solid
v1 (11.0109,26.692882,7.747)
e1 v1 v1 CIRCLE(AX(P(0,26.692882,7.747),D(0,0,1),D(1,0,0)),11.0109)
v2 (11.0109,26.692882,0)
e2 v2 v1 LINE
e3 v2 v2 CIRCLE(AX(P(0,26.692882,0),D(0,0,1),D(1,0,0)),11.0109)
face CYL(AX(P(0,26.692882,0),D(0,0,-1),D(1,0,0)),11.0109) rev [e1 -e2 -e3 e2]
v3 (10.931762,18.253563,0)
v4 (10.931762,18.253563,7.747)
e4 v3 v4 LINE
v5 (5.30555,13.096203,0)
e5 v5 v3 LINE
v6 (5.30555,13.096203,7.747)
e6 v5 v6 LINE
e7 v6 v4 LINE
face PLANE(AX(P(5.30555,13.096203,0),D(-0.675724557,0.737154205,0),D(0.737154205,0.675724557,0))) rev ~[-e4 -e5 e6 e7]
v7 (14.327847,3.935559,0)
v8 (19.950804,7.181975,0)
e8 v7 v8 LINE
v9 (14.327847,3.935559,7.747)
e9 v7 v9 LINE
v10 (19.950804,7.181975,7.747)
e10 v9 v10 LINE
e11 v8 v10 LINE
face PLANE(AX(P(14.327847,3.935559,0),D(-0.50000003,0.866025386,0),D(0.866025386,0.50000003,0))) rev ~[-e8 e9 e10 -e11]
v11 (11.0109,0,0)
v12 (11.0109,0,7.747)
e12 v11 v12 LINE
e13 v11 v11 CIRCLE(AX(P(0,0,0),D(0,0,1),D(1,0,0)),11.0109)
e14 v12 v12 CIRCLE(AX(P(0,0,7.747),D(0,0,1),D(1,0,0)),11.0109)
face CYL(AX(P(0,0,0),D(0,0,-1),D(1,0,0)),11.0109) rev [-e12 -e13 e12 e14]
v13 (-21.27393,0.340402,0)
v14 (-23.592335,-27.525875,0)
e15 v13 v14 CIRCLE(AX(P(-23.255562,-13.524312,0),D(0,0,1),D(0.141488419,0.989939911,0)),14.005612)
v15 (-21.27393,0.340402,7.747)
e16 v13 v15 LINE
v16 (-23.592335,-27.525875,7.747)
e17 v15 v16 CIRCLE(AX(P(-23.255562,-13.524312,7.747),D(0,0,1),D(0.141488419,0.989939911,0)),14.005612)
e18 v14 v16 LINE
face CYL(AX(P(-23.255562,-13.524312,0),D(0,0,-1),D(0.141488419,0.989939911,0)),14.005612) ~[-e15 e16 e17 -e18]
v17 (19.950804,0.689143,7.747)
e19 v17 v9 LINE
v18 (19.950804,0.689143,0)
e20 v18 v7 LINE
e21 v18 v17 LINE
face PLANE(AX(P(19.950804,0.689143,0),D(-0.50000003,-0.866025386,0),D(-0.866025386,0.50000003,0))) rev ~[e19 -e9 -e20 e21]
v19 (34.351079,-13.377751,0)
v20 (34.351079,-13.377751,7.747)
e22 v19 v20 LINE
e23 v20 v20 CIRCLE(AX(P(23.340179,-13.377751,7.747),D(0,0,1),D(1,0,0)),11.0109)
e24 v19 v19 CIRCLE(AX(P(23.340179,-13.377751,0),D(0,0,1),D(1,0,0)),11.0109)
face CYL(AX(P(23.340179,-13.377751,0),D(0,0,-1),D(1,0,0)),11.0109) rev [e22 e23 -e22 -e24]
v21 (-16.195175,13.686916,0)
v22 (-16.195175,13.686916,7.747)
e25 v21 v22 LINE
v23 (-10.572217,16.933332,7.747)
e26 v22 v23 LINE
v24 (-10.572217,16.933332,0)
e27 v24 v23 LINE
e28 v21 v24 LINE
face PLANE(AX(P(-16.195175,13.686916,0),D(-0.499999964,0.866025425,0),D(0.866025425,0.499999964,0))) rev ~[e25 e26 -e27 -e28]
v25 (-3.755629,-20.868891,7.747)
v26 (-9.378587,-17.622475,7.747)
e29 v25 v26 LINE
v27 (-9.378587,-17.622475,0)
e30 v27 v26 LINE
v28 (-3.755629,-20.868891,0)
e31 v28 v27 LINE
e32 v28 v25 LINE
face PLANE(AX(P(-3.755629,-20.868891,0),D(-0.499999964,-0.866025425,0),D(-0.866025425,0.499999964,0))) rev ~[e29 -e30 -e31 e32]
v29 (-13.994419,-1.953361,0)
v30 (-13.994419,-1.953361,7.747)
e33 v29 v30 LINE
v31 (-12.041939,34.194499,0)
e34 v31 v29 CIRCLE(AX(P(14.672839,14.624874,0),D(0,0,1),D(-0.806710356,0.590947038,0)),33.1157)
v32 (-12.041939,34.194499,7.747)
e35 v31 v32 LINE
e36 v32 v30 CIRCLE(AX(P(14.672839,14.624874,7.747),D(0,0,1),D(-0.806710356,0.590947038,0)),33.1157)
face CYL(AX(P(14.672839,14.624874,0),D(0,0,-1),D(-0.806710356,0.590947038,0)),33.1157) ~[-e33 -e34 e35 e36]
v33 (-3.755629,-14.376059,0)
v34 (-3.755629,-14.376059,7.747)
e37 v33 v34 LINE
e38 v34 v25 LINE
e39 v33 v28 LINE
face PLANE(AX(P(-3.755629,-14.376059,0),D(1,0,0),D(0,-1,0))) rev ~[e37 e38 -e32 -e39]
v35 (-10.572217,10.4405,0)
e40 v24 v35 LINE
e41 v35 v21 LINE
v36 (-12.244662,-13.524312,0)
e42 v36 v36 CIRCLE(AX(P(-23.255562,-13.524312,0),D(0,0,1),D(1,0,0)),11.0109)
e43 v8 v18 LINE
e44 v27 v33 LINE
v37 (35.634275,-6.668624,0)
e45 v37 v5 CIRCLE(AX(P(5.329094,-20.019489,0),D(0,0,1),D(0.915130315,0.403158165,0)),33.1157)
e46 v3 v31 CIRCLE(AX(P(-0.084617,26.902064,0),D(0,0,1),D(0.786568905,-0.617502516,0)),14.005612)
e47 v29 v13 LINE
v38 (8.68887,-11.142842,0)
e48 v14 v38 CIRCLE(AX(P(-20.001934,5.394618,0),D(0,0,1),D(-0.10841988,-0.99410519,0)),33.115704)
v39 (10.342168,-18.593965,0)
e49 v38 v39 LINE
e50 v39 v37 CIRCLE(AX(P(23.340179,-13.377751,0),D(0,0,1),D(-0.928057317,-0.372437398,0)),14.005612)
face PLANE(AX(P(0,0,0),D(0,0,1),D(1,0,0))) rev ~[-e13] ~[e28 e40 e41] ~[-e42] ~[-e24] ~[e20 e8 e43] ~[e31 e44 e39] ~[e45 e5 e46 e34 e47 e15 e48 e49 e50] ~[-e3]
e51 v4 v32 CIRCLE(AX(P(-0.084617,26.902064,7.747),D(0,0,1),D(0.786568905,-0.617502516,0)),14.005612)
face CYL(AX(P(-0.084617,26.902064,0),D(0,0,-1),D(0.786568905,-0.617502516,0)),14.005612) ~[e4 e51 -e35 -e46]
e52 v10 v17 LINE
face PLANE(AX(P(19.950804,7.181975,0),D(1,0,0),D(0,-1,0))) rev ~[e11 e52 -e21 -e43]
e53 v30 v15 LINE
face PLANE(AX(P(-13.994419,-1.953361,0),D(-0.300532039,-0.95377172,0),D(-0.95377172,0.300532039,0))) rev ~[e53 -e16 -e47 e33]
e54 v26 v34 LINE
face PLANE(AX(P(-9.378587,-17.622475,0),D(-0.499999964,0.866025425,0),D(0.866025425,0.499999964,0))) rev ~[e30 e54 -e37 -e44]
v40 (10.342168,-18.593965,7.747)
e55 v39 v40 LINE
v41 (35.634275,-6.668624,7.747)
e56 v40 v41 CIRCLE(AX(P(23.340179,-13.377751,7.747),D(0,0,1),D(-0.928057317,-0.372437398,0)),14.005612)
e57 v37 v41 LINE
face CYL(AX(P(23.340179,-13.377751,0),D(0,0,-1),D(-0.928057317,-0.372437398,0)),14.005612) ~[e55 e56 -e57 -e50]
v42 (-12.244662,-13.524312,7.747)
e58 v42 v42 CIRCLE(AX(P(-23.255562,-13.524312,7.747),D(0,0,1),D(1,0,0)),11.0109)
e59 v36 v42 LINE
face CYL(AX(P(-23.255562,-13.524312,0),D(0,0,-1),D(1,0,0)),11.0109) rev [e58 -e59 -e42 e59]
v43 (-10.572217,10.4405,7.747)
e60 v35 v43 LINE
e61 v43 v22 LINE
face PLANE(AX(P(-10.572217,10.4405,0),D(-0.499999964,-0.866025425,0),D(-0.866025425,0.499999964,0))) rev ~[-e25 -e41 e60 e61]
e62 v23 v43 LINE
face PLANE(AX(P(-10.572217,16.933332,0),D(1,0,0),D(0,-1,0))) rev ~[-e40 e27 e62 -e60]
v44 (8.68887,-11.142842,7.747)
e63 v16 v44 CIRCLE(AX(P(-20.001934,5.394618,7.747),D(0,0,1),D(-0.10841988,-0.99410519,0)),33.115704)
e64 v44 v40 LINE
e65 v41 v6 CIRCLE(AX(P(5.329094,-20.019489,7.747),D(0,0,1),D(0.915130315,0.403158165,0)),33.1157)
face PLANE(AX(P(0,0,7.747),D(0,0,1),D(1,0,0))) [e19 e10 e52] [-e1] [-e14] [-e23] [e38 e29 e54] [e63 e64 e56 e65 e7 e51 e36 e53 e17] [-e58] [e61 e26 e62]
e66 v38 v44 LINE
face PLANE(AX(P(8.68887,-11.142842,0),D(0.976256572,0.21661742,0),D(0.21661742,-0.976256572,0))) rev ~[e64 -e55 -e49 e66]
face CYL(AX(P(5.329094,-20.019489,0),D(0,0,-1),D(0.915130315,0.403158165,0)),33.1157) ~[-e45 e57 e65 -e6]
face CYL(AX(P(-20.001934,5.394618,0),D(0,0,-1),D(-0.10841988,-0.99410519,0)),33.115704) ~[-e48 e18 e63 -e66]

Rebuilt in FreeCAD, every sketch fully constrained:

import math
import FreeCAD as App
import Part
import Sketcher
Q = App.Units.Quantity

doc = App.newDocument("Part")
body = doc.addObject("PartDesign::Body", "Body")

# Sketch on XY plane
sketch1 = body.newObject("Sketcher::SketchObject", "Sketch")
sketch1.AttachmentSupport = (doc.getObject("XY_Plane"), [""])
sketch1.MapMode = "FlatFace"
sketch1.addGeometry(Part.LineSegment(App.Vector(5, 13, 0), App.Vector(11, 18, 0)), False)
sketch1.addGeometry(Part.ArcOfCircle(Part.Circle(App.Vector(0, 27, 0), App.Vector(0, 0, 1), 14), math.radians(-38), math.radians(149)), False)
sketch1.addGeometry(Part.ArcOfCircle(Part.Circle(App.Vector(15, 15, 0), App.Vector(0, 0, 1), 33), math.radians(144), math.radians(210)), False)
sketch1.addGeometry(Part.LineSegment(App.Vector(-14, -2, 0), App.Vector(-21, 0, 0)), False)
sketch1.addGeometry(Part.ArcOfCircle(Part.Circle(App.Vector(-23, -14, 0), App.Vector(0, 0, 1), 14), math.radians(82), math.radians(269)), False)
sketch1.addGeometry(Part.ArcOfCircle(Part.Circle(App.Vector(-20, 5, 0), App.Vector(0, 0, 1), 33), math.radians(-96), math.radians(-30)), False)
sketch1.addGeometry(Part.LineSegment(App.Vector(9, -11, 0), App.Vector(10, -19, 0)), False)
sketch1.addGeometry(Part.ArcOfCircle(Part.Circle(App.Vector(23, -13, 0), App.Vector(0, 0, 1), 14), math.radians(-158), math.radians(29)), False)
sketch1.addGeometry(Part.ArcOfCircle(Part.Circle(App.Vector(5, -20, 0), App.Vector(0, 0, 1), 33), math.radians(24), math.radians(90)), False)
sketch1.addGeometry(Part.Circle(App.Vector(-23, -14, 0), App.Vector(0, 0, 1), 11), False)
sketch1.addGeometry(Part.LineSegment(App.Vector(-9, -18, 0), App.Vector(-4, -14, 0)), False)
sketch1.addGeometry(Part.LineSegment(App.Vector(-4, -14, 0), App.Vector(-4, -21, 0)), False)
sketch1.addGeometry(Part.LineSegment(App.Vector(-4, -21, 0), App.Vector(-9, -18, 0)), False)
sketch1.addGeometry(Part.Circle(App.Vector(0, 0, 0), App.Vector(0, 0, 1), 11), False)
sketch1.addGeometry(Part.Circle(App.Vector(23, -13, 0), App.Vector(0, 0, 1), 11), False)
sketch1.addGeometry(Part.LineSegment(App.Vector(20, 1, 0), App.Vector(14, 4, 0)), False)
sketch1.addGeometry(Part.LineSegment(App.Vector(14, 4, 0), App.Vector(20, 7, 0)), False)
sketch1.addGeometry(Part.LineSegment(App.Vector(20, 7, 0), App.Vector(20, 1, 0)), False)
sketch1.addGeometry(Part.LineSegment(App.Vector(-11, 10, 0), App.Vector(-16, 14, 0)), False)
sketch1.addGeometry(Part.LineSegment(App.Vector(-16, 14, 0), App.Vector(-11, 17, 0)), False)
sketch1.addGeometry(Part.LineSegment(App.Vector(-11, 17, 0), App.Vector(-11, 10, 0)), False)
sketch1.addGeometry(Part.Circle(App.Vector(0, 27, 0), App.Vector(0, 0, 1), 11), False)
sketch1.addConstraint(Sketcher.Constraint("Coincident", 0, 2, 1, 1))
sketch1.addConstraint(Sketcher.Constraint("Coincident", 1, 2, 2, 1))
sketch1.addConstraint(Sketcher.Constraint("Coincident", 2, 2, 3, 1))
sketch1.addConstraint(Sketcher.Constraint("Coincident", 3, 2, 4, 1))
sketch1.addConstraint(Sketcher.Constraint("Coincident", 4, 2, 5, 1))
sketch1.addConstraint(Sketcher.Constraint("Coincident", 5, 2, 6, 1))
sketch1.addConstraint(Sketcher.Constraint("Coincident", 6, 2, 7, 1))
sketch1.addConstraint(Sketcher.Constraint("Coincident", 7, 2, 8, 1))
sketch1.addConstraint(Sketcher.Constraint("Coincident", 8, 2, 0, 1))
sketch1.addConstraint(Sketcher.Constraint("Coincident", 10, 2, 11, 1))
sketch1.addConstraint(Sketcher.Constraint("Coincident", 11, 2, 12, 1))
sketch1.addConstraint(Sketcher.Constraint("Coincident", 12, 2, 10, 1))
sketch1.addConstraint(Sketcher.Constraint("Coincident", 15, 2, 16, 1))
sketch1.addConstraint(Sketcher.Constraint("Coincident", 16, 2, 17, 1))
sketch1.addConstraint(Sketcher.Constraint("Coincident", 17, 2, 15, 1))
sketch1.addConstraint(Sketcher.Constraint("Coincident", 18, 2, 19, 1))
sketch1.addConstraint(Sketcher.Constraint("Coincident", 19, 2, 20, 1))
sketch1.addConstraint(Sketcher.Constraint("Coincident", 20, 2, 18, 1))
sketch1.addConstraint(Sketcher.Constraint("Vertical", 11))
sketch1.addConstraint(Sketcher.Constraint("Vertical", 17))
sketch1.addConstraint(Sketcher.Constraint("Vertical", 20))
sketch1.addConstraint(Sketcher.Constraint("Coincident", 13, 3, -1, 1))
sketch1.addConstraint(Sketcher.Constraint("Coincident", 9, 3, 4, 3))
sketch1.addConstraint(Sketcher.Constraint("Coincident", 14, 3, 7, 3))
sketch1.addConstraint(Sketcher.Constraint("Equal", 1, 4))
sketch1.addConstraint(Sketcher.Constraint("Equal", 4, 7))
sketch1.addConstraint(Sketcher.Constraint("Equal", 2, 8))
sketch1.addConstraint(Sketcher.Constraint("Equal", 9, 13))
sketch1.addConstraint(Sketcher.Constraint("Equal", 13, 14))
sketch1.addConstraint(Sketcher.Constraint("Equal", 14, 21))
sketch1.addConstraint(Sketcher.Constraint("PointOnObject", 21, 3, -2))
sketch1.addConstraint(Sketcher.Constraint("Parallel", 12, 15))
sketch1.addConstraint(Sketcher.Constraint("Parallel", 10, 16))
sketch1.addConstraint(Sketcher.Constraint("Parallel", 15, 18))
sketch1.addConstraint(Sketcher.Constraint("Parallel", 16, 19))
sketch1.addConstraint(Sketcher.Constraint("Equal", 11, 17))
sketch1.addConstraint(Sketcher.Constraint("Equal", 17, 20))
sketch1.addConstraint(Sketcher.Constraint("Equal", 0, 3))
sketch1.addConstraint(Sketcher.Constraint("Equal", 3, 6))
sketch1.addConstraint(Sketcher.Constraint("Equal", 10, 12))
sketch1.addConstraint(Sketcher.Constraint("Diameter", 9, Q("0.867 in")))
sketch1.addConstraint(Sketcher.Constraint("Angle", 10, Q("29.999998 deg")))
sketch1.addConstraint(Sketcher.Constraint("Radius", 2, 33.1157))
sketch1.addConstraint(Sketcher.Constraint("Radius", 1, 14.005612))
sketch1.addConstraint(Sketcher.Constraint("Radius", 5, 33.115704))
sketch1.addConstraint(Sketcher.Constraint("DistanceY", -1, 1, 1, 2, 34.194499))
sketch1.addConstraint(Sketcher.Constraint("DistanceY", -1, 1, 20, 2, 10.4405))
sketch1.addConstraint(Sketcher.Constraint("DistanceX", 4, 3, 2, 3, 37.928401))
sketch1.addConstraint(Sketcher.Constraint("DistanceY", 0, 2, 1, 3, 8.648501))
sketch1.addConstraint(Sketcher.Constraint("DistanceX", 1, 2, 0, 2, 22.973701))
sketch1.addConstraint(Sketcher.Constraint("DistanceX", 5, 2, 6, 2, 1.653298))
sketch1.addConstraint(Sketcher.Constraint("DistanceY", 7, 2, 2, 3, 21.293498))
sketch1.addConstraint(Sketcher.Constraint("DistanceX", 10, 2, 5, 2, 12.444499))
sketch1.addConstraint(Sketcher.Constraint("DistanceY", 5, 2, 15, 2, 15.078401))
sketch1.addConstraint(Sketcher.Constraint("DistanceY", 16, 2, 2, 3, 7.442899))
sketch1.addConstraint(Sketcher.Constraint("DistanceX", 19, 2, 1, 3, 10.4876))
sketch1.addConstraint(Sketcher.Constraint("DistanceY", 3, 2, 20, 2, 10.100098))
sketch1.addConstraint(Sketcher.Constraint("Distance", 0, 7.632341))
sketch1.addConstraint(Sketcher.Constraint("Distance", 15, 6.492832))
sketch1.addConstraint(Sketcher.Constraint("DistanceX", -1, 1, 2, 3, 14.672839))
sketch1.addConstraint(Sketcher.Constraint("DistanceY", -1, 1, 5, 3, 5.394618))
sketch1.addConstraint(Sketcher.Constraint("DistanceX", -1, 1, 7, 3, 23.340179))
sketch1.addConstraint(Sketcher.Constraint("DistanceY", 7, 3, -1, 1, 13.377751))
sketch1.addConstraint(Sketcher.Constraint("DistanceY", 8, 3, -1, 1, 20.019489))
sketch1.addConstraint(Sketcher.Constraint("DistanceX", 1, 2, -1, 1, 12.041939))
sketch1.addConstraint(Sketcher.Constraint("DistanceX", 2, 2, -1, 1, 13.994419))
sketch1.addConstraint(Sketcher.Constraint("DistanceY", 10, 2, -1, 1, 14.376059))
sketch1.addConstraint(Sketcher.Constraint("DistanceY", 21, 3, 1, 3, 0.209182))
sketch1.addConstraint(Sketcher.Constraint("DistanceX", 15, 2, 2, 3, 0.344992))
pad1 = body.newObject("PartDesign::Pad", "Pad")
pad1.Profile = sketch1
pad1.Length = Q("0.305 in")

doc.recompute()
